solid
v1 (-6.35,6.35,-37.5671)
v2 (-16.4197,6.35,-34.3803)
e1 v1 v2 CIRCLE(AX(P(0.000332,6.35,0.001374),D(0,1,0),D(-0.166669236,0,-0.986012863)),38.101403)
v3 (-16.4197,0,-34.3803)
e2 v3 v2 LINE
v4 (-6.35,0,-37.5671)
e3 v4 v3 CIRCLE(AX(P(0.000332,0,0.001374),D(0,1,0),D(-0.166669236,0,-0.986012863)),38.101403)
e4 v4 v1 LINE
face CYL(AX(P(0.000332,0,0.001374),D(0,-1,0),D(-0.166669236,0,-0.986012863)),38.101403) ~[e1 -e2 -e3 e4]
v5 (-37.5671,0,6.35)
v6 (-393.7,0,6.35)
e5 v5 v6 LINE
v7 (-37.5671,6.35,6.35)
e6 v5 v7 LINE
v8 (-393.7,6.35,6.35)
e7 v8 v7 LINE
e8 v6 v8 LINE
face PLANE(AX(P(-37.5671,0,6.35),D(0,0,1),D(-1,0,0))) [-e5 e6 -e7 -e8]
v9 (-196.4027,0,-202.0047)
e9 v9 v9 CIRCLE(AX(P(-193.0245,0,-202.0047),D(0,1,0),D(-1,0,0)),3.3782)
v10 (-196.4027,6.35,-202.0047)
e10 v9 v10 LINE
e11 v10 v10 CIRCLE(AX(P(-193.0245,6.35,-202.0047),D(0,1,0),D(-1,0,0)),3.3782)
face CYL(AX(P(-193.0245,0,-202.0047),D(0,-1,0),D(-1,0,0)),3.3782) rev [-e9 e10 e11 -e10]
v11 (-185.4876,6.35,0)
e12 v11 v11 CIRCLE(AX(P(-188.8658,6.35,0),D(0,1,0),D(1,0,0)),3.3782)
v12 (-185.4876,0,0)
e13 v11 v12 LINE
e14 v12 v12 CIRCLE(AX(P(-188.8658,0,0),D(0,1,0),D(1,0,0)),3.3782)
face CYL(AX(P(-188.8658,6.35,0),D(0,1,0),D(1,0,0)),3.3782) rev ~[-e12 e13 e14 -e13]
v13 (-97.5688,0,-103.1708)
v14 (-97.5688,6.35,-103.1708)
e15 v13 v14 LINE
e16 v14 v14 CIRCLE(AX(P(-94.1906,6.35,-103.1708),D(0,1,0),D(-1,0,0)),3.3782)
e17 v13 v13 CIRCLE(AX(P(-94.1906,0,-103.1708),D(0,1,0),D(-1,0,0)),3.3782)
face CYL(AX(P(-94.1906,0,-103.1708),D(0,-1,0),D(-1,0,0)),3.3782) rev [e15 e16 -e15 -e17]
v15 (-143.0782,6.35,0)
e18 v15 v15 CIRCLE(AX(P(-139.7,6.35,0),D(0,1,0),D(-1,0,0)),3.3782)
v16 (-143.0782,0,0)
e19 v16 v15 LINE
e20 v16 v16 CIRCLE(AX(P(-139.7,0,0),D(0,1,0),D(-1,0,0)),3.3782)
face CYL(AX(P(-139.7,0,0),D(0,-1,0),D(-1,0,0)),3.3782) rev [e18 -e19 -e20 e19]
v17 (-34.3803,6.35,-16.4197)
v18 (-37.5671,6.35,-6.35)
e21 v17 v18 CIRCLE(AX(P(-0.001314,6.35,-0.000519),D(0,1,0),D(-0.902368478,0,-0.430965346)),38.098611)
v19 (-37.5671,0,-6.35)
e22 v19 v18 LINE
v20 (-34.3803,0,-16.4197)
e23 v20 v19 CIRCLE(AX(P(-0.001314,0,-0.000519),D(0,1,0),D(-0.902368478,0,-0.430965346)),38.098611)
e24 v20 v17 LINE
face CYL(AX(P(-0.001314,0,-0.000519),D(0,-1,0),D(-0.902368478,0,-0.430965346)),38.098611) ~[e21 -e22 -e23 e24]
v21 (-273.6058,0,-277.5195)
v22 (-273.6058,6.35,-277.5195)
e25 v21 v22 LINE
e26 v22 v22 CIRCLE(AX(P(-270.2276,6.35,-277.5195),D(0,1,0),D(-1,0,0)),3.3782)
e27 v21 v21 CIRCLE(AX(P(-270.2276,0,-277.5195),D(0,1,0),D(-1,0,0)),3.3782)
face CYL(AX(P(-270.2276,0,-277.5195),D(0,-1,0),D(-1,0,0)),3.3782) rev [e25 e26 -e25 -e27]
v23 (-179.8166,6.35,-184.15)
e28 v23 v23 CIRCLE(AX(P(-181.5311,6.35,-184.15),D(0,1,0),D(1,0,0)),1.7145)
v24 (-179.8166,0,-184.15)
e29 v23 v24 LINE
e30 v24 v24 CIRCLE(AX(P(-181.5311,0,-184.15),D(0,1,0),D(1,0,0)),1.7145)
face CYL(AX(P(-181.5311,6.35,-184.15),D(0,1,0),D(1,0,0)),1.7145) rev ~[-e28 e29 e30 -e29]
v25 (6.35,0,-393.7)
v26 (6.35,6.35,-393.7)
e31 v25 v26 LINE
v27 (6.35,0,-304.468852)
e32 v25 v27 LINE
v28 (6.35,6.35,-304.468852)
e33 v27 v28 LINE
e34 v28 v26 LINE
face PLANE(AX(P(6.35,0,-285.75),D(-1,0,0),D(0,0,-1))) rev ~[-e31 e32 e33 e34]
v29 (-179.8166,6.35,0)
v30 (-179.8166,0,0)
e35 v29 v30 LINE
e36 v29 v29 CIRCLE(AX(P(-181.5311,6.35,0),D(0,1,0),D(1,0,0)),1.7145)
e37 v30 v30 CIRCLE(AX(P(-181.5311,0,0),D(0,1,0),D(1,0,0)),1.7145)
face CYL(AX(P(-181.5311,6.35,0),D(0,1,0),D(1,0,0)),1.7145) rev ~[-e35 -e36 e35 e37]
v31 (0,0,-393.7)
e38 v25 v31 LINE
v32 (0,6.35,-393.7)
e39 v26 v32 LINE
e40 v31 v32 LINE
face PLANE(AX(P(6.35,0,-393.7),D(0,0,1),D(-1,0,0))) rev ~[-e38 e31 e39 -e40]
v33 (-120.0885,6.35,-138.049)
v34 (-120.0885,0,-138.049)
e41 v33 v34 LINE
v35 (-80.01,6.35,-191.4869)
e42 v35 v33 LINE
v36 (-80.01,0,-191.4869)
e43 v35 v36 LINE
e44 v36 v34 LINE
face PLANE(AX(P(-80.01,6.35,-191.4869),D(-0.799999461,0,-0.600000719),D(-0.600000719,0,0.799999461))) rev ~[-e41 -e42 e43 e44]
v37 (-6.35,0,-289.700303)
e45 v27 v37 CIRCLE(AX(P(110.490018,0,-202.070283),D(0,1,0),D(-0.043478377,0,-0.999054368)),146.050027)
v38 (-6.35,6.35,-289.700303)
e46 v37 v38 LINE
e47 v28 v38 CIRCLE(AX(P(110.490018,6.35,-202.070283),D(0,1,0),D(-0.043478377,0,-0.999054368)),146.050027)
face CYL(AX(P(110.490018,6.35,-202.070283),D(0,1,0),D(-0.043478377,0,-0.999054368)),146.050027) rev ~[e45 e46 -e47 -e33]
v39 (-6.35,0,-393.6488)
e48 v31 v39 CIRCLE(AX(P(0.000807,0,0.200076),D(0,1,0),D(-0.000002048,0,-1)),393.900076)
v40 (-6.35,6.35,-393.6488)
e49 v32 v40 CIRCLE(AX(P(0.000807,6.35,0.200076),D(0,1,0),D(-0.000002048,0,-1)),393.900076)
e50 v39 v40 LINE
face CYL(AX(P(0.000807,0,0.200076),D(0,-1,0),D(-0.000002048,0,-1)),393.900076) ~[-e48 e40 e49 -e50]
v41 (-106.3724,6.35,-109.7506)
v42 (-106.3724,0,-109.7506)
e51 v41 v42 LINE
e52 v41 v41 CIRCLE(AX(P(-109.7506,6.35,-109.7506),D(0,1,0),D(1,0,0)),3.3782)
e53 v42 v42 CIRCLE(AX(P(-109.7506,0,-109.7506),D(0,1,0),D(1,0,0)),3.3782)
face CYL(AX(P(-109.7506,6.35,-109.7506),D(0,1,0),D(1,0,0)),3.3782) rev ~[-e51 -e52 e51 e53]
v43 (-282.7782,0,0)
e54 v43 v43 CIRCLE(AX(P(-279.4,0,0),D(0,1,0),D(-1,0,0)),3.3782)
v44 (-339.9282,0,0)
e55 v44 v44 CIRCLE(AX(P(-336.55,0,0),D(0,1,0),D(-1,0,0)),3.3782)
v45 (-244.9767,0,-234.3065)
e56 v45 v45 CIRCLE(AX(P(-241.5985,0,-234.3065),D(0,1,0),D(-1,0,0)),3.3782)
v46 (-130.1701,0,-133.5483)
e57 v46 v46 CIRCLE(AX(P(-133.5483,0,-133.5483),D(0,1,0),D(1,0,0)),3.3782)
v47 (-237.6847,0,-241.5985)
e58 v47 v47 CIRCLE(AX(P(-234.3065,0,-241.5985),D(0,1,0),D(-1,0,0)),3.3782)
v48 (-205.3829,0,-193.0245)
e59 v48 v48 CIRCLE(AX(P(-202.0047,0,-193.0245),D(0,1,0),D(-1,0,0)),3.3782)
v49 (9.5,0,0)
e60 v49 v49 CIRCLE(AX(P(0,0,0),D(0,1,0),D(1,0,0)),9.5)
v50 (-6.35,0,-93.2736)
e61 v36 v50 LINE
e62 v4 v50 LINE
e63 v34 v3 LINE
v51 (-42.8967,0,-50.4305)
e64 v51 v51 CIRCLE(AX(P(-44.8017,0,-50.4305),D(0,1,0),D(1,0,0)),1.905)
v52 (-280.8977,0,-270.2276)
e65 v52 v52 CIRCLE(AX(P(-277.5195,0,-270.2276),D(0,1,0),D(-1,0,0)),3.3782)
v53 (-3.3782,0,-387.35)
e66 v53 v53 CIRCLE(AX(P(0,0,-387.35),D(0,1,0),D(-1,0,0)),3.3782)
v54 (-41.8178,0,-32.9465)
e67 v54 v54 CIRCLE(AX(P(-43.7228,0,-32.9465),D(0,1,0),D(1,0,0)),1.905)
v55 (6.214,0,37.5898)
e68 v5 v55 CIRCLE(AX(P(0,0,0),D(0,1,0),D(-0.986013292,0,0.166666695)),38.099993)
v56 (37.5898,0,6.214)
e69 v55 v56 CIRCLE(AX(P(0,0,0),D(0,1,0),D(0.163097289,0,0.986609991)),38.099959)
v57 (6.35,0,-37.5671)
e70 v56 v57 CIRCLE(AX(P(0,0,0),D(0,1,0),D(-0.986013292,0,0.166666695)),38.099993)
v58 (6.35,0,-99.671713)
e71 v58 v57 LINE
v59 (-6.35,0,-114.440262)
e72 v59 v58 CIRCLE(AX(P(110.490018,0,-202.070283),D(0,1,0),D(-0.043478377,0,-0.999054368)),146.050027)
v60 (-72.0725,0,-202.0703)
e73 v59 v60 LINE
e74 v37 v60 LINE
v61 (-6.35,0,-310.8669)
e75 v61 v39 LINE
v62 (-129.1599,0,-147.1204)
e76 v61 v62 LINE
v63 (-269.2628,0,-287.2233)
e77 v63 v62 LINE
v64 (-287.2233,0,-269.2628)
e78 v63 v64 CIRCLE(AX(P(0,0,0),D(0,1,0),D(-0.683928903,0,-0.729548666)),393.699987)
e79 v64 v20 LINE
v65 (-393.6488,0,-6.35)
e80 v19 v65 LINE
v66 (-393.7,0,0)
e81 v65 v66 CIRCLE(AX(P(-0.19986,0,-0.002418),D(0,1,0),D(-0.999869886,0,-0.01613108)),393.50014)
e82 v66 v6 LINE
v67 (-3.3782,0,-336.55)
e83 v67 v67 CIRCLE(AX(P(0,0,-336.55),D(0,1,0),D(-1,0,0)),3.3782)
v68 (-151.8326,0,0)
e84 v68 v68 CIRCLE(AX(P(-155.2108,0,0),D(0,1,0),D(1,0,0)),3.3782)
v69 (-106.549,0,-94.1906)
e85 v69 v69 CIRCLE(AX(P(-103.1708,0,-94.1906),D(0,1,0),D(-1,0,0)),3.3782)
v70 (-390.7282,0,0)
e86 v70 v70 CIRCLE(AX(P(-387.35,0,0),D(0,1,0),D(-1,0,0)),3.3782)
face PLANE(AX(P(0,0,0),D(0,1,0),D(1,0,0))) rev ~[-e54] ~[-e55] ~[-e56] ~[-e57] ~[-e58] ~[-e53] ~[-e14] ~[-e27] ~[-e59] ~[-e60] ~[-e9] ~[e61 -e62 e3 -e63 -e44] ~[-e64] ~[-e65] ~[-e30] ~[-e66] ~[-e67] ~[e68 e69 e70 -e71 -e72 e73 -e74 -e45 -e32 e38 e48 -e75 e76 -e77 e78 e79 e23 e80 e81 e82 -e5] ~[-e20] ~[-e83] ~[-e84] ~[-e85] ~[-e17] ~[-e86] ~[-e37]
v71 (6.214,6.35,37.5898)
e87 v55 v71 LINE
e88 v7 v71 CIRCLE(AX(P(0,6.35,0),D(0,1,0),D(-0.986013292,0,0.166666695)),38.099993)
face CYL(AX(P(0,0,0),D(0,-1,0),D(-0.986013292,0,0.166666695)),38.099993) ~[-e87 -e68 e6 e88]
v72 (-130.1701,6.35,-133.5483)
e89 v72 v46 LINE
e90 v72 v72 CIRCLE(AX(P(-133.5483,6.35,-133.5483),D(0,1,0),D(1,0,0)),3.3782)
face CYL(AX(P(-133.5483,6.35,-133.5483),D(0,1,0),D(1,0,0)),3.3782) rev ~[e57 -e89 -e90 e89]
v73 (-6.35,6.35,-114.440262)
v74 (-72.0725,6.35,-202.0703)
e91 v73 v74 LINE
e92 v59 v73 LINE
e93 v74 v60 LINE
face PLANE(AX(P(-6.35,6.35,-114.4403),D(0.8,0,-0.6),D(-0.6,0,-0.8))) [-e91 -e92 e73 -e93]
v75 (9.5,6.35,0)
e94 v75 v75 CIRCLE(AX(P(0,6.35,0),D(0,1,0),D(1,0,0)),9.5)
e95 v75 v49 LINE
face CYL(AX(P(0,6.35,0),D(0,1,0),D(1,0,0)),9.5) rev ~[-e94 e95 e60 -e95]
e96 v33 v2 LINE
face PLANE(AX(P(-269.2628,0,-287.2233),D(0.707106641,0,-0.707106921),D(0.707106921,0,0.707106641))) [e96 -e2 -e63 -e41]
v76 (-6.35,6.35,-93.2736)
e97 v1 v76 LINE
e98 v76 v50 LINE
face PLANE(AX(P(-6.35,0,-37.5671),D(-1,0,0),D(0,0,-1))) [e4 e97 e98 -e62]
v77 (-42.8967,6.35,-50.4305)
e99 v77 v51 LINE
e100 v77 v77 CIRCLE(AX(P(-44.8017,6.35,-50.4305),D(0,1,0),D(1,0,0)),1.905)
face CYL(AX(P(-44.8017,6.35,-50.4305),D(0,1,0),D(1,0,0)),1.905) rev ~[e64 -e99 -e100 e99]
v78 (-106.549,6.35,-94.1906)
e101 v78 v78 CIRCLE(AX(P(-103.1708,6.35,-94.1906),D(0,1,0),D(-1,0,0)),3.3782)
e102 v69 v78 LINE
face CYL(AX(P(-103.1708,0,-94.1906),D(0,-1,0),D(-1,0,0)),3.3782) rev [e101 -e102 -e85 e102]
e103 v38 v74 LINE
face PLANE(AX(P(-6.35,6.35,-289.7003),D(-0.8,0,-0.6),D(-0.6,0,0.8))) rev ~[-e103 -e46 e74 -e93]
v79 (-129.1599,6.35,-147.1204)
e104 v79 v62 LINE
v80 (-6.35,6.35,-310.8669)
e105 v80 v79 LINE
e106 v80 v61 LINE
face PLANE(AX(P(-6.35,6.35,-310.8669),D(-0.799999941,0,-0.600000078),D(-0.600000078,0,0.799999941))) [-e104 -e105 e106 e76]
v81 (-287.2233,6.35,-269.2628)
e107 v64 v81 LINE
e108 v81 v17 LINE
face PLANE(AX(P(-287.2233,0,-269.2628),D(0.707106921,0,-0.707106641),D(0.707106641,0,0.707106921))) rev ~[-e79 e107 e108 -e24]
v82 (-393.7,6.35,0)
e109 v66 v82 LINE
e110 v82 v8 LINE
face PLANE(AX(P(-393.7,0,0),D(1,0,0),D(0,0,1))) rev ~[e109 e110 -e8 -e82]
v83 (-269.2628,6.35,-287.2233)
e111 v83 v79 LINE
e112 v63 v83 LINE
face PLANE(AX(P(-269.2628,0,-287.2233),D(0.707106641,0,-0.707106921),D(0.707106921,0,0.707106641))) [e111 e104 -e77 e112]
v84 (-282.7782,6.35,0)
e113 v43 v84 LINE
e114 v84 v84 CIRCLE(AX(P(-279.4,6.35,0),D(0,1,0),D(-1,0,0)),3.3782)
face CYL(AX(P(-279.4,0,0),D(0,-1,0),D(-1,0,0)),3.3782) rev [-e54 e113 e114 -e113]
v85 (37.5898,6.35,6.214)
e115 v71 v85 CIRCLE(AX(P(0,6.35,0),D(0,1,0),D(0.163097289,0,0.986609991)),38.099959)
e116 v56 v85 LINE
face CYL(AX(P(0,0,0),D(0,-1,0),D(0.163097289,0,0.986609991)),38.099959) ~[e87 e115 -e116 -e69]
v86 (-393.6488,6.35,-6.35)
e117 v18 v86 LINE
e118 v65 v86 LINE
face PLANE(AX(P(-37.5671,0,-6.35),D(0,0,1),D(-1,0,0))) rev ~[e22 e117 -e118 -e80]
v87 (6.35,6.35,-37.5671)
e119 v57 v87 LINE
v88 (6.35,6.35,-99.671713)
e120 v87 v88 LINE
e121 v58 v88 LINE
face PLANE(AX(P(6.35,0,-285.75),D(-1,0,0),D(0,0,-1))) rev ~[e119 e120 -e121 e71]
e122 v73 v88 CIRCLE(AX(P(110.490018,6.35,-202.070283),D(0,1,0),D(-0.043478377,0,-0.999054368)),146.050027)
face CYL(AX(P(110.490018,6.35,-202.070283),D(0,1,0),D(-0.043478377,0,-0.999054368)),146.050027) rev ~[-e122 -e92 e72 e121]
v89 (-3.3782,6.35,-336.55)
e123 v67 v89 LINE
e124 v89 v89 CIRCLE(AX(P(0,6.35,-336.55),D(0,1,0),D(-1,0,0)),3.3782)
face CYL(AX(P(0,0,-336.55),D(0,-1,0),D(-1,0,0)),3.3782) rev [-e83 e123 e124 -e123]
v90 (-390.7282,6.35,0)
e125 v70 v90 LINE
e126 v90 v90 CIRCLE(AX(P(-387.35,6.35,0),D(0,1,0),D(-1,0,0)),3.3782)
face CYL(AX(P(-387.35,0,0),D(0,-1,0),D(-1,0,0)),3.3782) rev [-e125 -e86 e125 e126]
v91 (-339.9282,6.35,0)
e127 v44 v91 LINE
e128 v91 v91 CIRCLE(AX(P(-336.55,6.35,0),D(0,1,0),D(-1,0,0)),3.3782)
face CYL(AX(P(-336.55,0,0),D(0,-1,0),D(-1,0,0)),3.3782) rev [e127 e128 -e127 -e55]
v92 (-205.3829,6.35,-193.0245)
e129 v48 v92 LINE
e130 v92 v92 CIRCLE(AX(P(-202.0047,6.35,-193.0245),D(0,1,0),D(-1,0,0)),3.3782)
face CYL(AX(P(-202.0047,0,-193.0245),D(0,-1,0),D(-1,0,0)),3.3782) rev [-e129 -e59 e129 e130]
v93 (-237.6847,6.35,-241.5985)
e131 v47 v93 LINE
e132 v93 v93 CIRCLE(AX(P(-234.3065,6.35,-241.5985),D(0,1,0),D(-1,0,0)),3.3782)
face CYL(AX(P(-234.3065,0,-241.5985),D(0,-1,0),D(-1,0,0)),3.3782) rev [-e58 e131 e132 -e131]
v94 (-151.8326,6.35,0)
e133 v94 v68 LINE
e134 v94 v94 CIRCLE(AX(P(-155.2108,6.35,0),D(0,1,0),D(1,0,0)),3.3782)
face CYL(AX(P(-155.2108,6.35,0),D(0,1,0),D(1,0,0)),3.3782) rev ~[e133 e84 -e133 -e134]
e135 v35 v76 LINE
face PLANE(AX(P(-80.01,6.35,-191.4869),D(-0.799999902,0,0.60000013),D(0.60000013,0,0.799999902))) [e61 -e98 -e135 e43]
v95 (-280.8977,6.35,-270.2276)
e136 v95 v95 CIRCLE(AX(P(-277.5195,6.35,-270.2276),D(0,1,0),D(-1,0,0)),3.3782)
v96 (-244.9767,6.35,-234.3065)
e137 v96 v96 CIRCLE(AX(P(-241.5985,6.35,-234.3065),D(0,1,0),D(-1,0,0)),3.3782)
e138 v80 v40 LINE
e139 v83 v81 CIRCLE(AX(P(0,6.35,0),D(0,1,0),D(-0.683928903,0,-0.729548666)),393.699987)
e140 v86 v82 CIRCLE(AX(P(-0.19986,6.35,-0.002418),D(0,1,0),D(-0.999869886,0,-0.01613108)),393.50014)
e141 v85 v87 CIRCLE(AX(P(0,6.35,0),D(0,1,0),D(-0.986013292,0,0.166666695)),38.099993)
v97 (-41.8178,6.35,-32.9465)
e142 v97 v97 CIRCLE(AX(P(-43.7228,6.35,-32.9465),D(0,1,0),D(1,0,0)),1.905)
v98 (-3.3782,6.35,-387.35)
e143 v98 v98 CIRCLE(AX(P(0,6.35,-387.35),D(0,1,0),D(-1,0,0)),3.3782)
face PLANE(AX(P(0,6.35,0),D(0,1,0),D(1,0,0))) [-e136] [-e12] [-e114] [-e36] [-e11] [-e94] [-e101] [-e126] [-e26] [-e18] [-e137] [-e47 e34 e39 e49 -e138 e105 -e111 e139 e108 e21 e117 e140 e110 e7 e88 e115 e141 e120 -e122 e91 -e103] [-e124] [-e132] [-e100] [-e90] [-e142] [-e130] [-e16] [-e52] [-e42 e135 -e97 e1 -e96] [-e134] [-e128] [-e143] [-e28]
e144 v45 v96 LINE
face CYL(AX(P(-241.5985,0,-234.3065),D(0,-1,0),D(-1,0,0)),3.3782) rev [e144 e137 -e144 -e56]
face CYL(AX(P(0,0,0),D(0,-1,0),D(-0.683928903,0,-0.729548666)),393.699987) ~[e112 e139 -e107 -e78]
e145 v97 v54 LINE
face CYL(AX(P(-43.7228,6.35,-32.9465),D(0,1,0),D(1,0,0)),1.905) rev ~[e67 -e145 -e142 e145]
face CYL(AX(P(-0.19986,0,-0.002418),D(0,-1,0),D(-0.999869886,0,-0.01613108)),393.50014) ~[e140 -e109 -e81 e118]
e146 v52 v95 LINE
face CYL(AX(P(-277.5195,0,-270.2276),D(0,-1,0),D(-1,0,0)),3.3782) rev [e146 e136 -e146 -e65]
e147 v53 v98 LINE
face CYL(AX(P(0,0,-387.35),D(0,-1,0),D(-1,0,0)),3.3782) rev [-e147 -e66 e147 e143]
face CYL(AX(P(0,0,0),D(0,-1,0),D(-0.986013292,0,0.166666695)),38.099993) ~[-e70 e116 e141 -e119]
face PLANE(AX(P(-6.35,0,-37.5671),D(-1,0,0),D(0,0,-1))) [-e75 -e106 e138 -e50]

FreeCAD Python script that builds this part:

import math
import FreeCAD as App
import Part
import Sketcher

V = App.Vector
Q = App.Units.Quantity


def add_polygon(sketch, points):
    """Adds a closed chain of lines whose ends are joined by coincident constraints."""
    first, n = sketch.GeometryCount, len(points)
    for a, b in zip(points, points[1:] + points[:1]):
        sketch.addGeometry(Part.LineSegment(App.Vector(*a, 0), App.Vector(*b, 0)), False)
    for i in range(n):
        sketch.addConstraint(Sketcher.Constraint("Coincident", first + i, 2, first + (i + 1) % n, 1))

doc = App.newDocument("Part")
params = doc.addObject("Spreadsheet::Sheet", "Params")
for row, (alias, value) in enumerate([
    ("sketch1_radius", "15.5 in"),
    ("sketch1_radius2", "1.5 in"),
    ("sketch1_diameter", "0.266 in"),
    ("sketch1_diameter2", "0.266 in"),
    ("sketch1_diameter3", "0.266 in"),
    ("pad1_length", "0.25 in"),
    ("sketch2_diameter", "1.125 in"),
    ("pad2_length", "0.25 in"),
    ("sketch3_radius", "5.75 in"),
    ("sketch3_diameter", "0.266 in"),
    ("pocket1_length", "1 in"),
    ("pad3_length", "0.25 in"),
    ("sketch5_diameter", "0.15 in"),
    ("sketch5_diameter2", "0.266 in"),
    ("sketch5_diameter3", "0.135 in"),
], start=1):
    params.set(f"A{row}", alias)
    params.set(f"B{row}", "=" + value)
    params.setAlias(f"B{row}", alias)

body = doc.addObject("PartDesign::Body", "Body")
body.AllowCompound = True

# Sketch on XZ plane
sketch1 = body.newObject("Sketcher::SketchObject", "Sketch")
sketch1.AttachmentSupport = (doc.getObject("XZ_Plane"), [""])
sketch1.MapMode = "FlatFace"
sketch1.addGeometry(Part.LineSegment(V(-6.35, -393.6488, 0), V(-6.35, -37.5671, 0)), False)
sketch1.addGeometry(Part.ArcOfCircle(Part.Circle(V(0.000332, 0.001374, 0), V(0, 0, 1), 38.101403), math.radians(-115.528251), math.radians(-99.594218)), False)
sketch1.addGeometry(Part.LineSegment(V(-16.4197, -34.3803, 0), V(-269.2628, -287.2233, 0)), False)
sketch1.addGeometry(Part.ArcOfCircle(Part.Circle(V(0, 0, 0), V(0, 0, 1), 393.699987), math.radians(-136.84857), math.radians(-133.15143)), False)
sketch1.addGeometry(Part.LineSegment(V(-287.2233, -269.2628, 0), V(-34.3803, -16.4197, 0)), False)
sketch1.addGeometry(Part.ArcOfCircle(Part.Circle(V(-0.001314, -0.000519, 0), V(0, 0, 1), 38.098611), math.radians(-170.40637), math.radians(-154.471161)), False)
sketch1.addGeometry(Part.LineSegment(V(-37.5671, -6.35, 0), V(-393.6488, -6.35, 0)), False)
sketch1.addGeometry(Part.ArcOfCircle(Part.Circle(V(-0.19986, -0.002418, 0), V(0, 0, 1), 393.50014), math.radians(179.999648), math.radians(180.924283)), False)
sketch1.addGeometry(Part.LineSegment(V(-393.7, 0, 0), V(-393.7, 6.35, 0)), False)
sketch1.addGeometry(Part.LineSegment(V(-393.7, 6.35, 0), V(-37.5671, 6.35, 0)), False)
sketch1.addGeometry(Part.ArcOfCircle(Part.Circle(V(0, 0, 0), V(0, 0, 1), 38.099993), math.radians(-80.40593), math.radians(170.40593)), False)
sketch1.addGeometry(Part.LineSegment(V(6.35, -37.5671, 0), V(6.35, -393.7, 0)), False)
sketch1.addGeometry(Part.LineSegment(V(6.35, -393.7, 0), V(0, -393.7, 0)), False)
sketch1.addGeometry(Part.ArcOfCircle(Part.Circle(V(0.000807, 0.200076, 0), V(0, 0, 1), 393.900076), math.radians(-90.923813), math.radians(-90.000117)), False)
sketch1.addGeometry(Part.Circle(V(0, -387.35, 0), V(0, 0, 1), 3.3782), False)
sketch1.addGeometry(Part.Circle(V(0, -336.55, 0), V(0, 0, 1), 3.3782), False)
sketch1.addGeometry(Part.Circle(V(0, -279.4, 0), V(0, 0, 1), 3.3782), False)
sketch1.addGeometry(Part.Circle(V(-270.2276, -277.5195, 0), V(0, 0, 1), 3.3782), False)
sketch1.addGeometry(Part.Circle(V(-277.5195, -270.2276, 0), V(0, 0, 1), 3.3782), False)
sketch1.addGeometry(Part.Circle(V(-234.3065, -241.5985, 0), V(0, 0, 1), 3.3782), False)
sketch1.addGeometry(Part.Circle(V(-241.5985, -234.3065, 0), V(0, 0, 1), 3.3782), False)
sketch1.addGeometry(Part.Circle(V(-193.0245, -202.0047, 0), V(0, 0, 1), 3.3782), False)
sketch1.addGeometry(Part.Circle(V(-202.0047, -193.0245, 0), V(0, 0, 1), 3.3782), False)
sketch1.addGeometry(Part.Circle(V(0, -139.7, 0), V(0, 0, 1), 3.3782), False)
sketch1.addGeometry(Part.Circle(V(-94.1906, -103.1708, 0), V(0, 0, 1), 3.3782), False)
sketch1.addGeometry(Part.Circle(V(-103.1708, -94.1906, 0), V(0, 0, 1), 3.3782), False)
sketch1.addGeometry(Part.Circle(V(0, 0, 0), V(0, 0, 1), 14.2875), False)
sketch1.addGeometry(Part.Circle(V(-139.7, 0, 0), V(0, 0, 1), 3.3782), False)
sketch1.addGeometry(Part.Circle(V(-279.4, 0, 0), V(0, 0, 1), 3.3782), False)
sketch1.addGeometry(Part.Circle(V(-336.55, 0, 0), V(0, 0, 1), 3.3782), False)
sketch1.addGeometry(Part.Circle(V(-387.35, 0, 0), V(0, 0, 1), 3.3782), False)
sketch1.addConstraint(Sketcher.Constraint("Coincident", 0, 2, 1, 2))
sketch1.addConstraint(Sketcher.Constraint("Coincident", 1, 1, 2, 1))
sketch1.addConstraint(Sketcher.Constraint("Coincident", 2, 2, 3, 2))
sketch1.addConstraint(Sketcher.Constraint("Coincident", 3, 1, 4, 1))
sketch1.addConstraint(Sketcher.Constraint("Coincident", 4, 2, 5, 2))
sketch1.addConstraint(Sketcher.Constraint("Coincident", 5, 1, 6, 1))
sketch1.addConstraint(Sketcher.Constraint("Coincident", 6, 2, 7, 2))
sketch1.addConstraint(Sketcher.Constraint("Coincident", 7, 1, 8, 1))
sketch1.addConstraint(Sketcher.Constraint("Coincident", 8, 2, 9, 1))
sketch1.addConstraint(Sketcher.Constraint("Coincident", 9, 2, 10, 2))
sketch1.addConstraint(Sketcher.Constraint("Coincident", 10, 1, 11, 1))
sketch1.addConstraint(Sketcher.Constraint("Coincident", 11, 2, 12, 1))
sketch1.addConstraint(Sketcher.Constraint("Coincident", 12, 2, 13, 2))
sketch1.addConstraint(Sketcher.Constraint("Coincident", 13, 1, 0, 1))
sketch1.addConstraint(Sketcher.Constraint("Vertical", 0))
sketch1.addConstraint(Sketcher.Constraint("Horizontal", 6))
sketch1.addConstraint(Sketcher.Constraint("Vertical", 8))
sketch1.addConstraint(Sketcher.Constraint("Horizontal", 9))
sketch1.addConstraint(Sketcher.Constraint("Vertical", 11))
sketch1.addConstraint(Sketcher.Constraint("Horizontal", 12))
sketch1.addConstraint(Sketcher.Constraint("Coincident", 3, 3, -1, 1))
sketch1.addConstraint(Sketcher.Constraint("Coincident", 10, 3, -1, 1))
sketch1.addConstraint(Sketcher.Constraint("Coincident", 26, 3, -1, 1))
sketch1.addConstraint(Sketcher.Constraint("PointOnObject", 14, 3, -2))
sketch1.addConstraint(Sketcher.Constraint("PointOnObject", 15, 3, -2))
sketch1.addConstraint(Sketcher.Constraint("PointOnObject", 16, 3, -2))
sketch1.addConstraint(Sketcher.Constraint("PointOnObject", 23, 3, -2))
sketch1.addConstraint(Sketcher.Constraint("PointOnObject", 27, 3, -1))
sketch1.addConstraint(Sketcher.Constraint("PointOnObject", 28, 3, -1))
sketch1.addConstraint(Sketcher.Constraint("PointOnObject", 29, 3, -1))
sketch1.addConstraint(Sketcher.Constraint("PointOnObject", 30, 3, -1))
sketch1.addConstraint(Sketcher.Constraint("PointOnObject", 7, 1, -1))
sketch1.addConstraint(Sketcher.Constraint("PointOnObject", 12, 2, -2))
sketch1.addConstraint(Sketcher.Constraint("Radius", 3, Q("15.5 in")))
sketch1.addConstraint(Sketcher.Constraint("Radius", 10, Q("1.5 in")))
sketch1.addConstraint(Sketcher.Constraint("Diameter", 14, Q("0.266 in")))
sketch1.addConstraint(Sketcher.Constraint("Diameter", 15, Q("0.266 in")))
sketch1.addConstraint(Sketcher.Constraint("Diameter", 16, Q("0.266 in")))
sketch1.addConstraint(Sketcher.Constraint("Diameter", 17, Q("0.266 in")))
sketch1.addConstraint(Sketcher.Constraint("Diameter", 18, Q("0.266 in")))
sketch1.addConstraint(Sketcher.Constraint("Diameter", 19, Q("0.266 in")))
sketch1.addConstraint(Sketcher.Constraint("Diameter", 20, Q("0.266 in")))
sketch1.addConstraint(Sketcher.Constraint("Diameter", 21, Q("0.266 in")))
sketch1.addConstraint(Sketcher.Constraint("Diameter", 22, Q("0.266 in")))
sketch1.addConstraint(Sketcher.Constraint("Diameter", 23, Q("0.266 in")))
sketch1.addConstraint(Sketcher.Constraint("Diameter", 24, Q("0.266 in")))
sketch1.addConstraint(Sketcher.Constraint("Diameter", 25, Q("0.266 in")))
sketch1.addConstraint(Sketcher.Constraint("Diameter", 26, Q("1.125 in")))
sketch1.addConstraint(Sketcher.Constraint("Diameter", 27, Q("0.266 in")))
sketch1.addConstraint(Sketcher.Constraint("Diameter", 28, Q("0.266 in")))
sketch1.addConstraint(Sketcher.Constraint("Diameter", 29, Q("0.266 in")))
sketch1.addConstraint(Sketcher.Constraint("Diameter", 30, Q("0.266 in")))
sketch1.addConstraint(Sketcher.Constraint("DistanceY", 14, 3, 15, 3, Q("2 in")))
sketch1.addConstraint(Sketcher.Constraint("DistanceX", 30, 3, 29, 3, Q("2 in")))
sketch1.addConstraint(Sketcher.Constraint("DistanceX", 12, 2, 12, 1, Q("0.25 in")))
sketch1.addConstraint(Sketcher.Constraint("DistanceY", 8, 1, 8, 2, Q("0.25 in")))
sketch1.addConstraint(Sketcher.Constraint("DistanceY", 23, 3, -1, 1, Q("5.5 in")))
sketch1.addConstraint(Sketcher.Constraint("DistanceX", 27, 3, -1, 1, Q("5.5 in")))
sketch1.addConstraint(Sketcher.Constraint("DistanceX", 7, 1, -1, 1, Q("15.5 in")))
sketch1.addConstraint(Sketcher.Constraint("DistanceY", 11, 2, -1, 1, Q("15.5 in")))
sketch1.addConstraint(Sketcher.Constraint("DistanceY", 16, 3, 23, 3, Q("5.5 in")))
sketch1.addConstraint(Sketcher.Constraint("DistanceX", 28, 3, 27, 3, Q("5.5 in")))
sketch1.addConstraint(Sketcher.Constraint("DistanceY", 6, 2, 8, 2, Q("0.5 in")))
sketch1.addConstraint(Sketcher.Constraint("DistanceX", 0, 2, 10, 1, Q("0.5 in")))
sketch1.addConstraint(Sketcher.Constraint("DistanceX", 7, 1, 30, 3, Q("0.25 in")))
sketch1.addConstraint(Sketcher.Constraint("DistanceY", 11, 2, 14, 3, Q("0.25 in")))
sketch1.addConstraint(Sketcher.Constraint("DistanceX", 17, 3, -1, 1, 270.2276))
sketch1.addConstraint(Sketcher.Constraint("DistanceY", 17, 3, -1, 1, 277.5195))
sketch1.addConstraint(Sketcher.Constraint("DistanceX", 18, 3, -1, 1, 277.5195))
sketch1.addConstraint(Sketcher.Constraint("DistanceY", 18, 3, -1, 1, 270.2276))
sketch1.addConstraint(Sketcher.Constraint("Radius", 1, 38.1014))
sketch1.addConstraint(Sketcher.Constraint("Radius", 5, 38.0986))
sketch1.addConstraint(Sketcher.Constraint("Radius", 7, 393.5001))
sketch1.addConstraint(Sketcher.Constraint("Radius", 13, 393.9))
sketch1.addConstraint(Sketcher.Constraint("DistanceY", 17, 3, 5, 3, 277.519))
sketch1.addConstraint(Sketcher.Constraint("DistanceX", 20, 3, 19, 3, 7.292))
sketch1.addConstraint(Sketcher.Constraint("DistanceY", 19, 3, 20, 3, 7.292))
sketch1.addConstraint(Sketcher.Constraint("DistanceY", 2, 2, -1, 1, Q("11.308 in")))
sketch1.addConstraint(Sketcher.Constraint("DistanceX", 3, 1, -1, 1, Q("11.308 in")))
sketch1.addConstraint(Sketcher.Constraint("DistanceY", 0, 2, 5, 3, Q("1.479 in")))
sketch1.addConstraint(Sketcher.Constraint("DistanceX", 6, 2, 6, 1, 356.0817))
sketch1.addConstraint(Sketcher.Constraint("DistanceY", 0, 1, 0, 2, 356.0817))
sketch1.addConstraint(Sketcher.Constraint("DistanceY", 7, 3, -1, 1, Q("0.0001 in")))
sketch1.addConstraint(Sketcher.Constraint("DistanceX", 21, 3, -1, 1, Q("7.5994 in")))
sketch1.addConstraint(Sketcher.Constraint("DistanceY", 22, 3, -1, 1, Q("7.5994 in")))
sketch1.addConstraint(Sketcher.Constraint("DistanceX", 24, 3, -1, 1, Q("3.7083 in")))
sketch1.addConstraint(Sketcher.Constraint("DistanceY", 25, 3, -1, 1, Q("3.7083 in")))
sketch1.addConstraint(Sketcher.Constraint("DistanceX", 18, 3, 19, 3, Q("1.7013 in")))
sketch1.addConstraint(Sketcher.Constraint("DistanceY", 17, 3, 20, 3, Q("1.7013 in")))
sketch1.addConstraint(Sketcher.Constraint("DistanceY", 19, 3, 21, 3, Q("1.5588 in")))
sketch1.addConstraint(Sketcher.Constraint("DistanceX", 20, 3, 22, 3, Q("1.5588 in")))
sketch1.addConstraint(Sketcher.Constraint("DistanceX", 25, 3, 5, 3, Q("4.0618 in")))
sketch1.addConstraint(Sketcher.Constraint("DistanceX", 1, 1, 5, 3, Q("0.6464 in")))
sketch1.addConstraint(Sketcher.Constraint("DistanceX", 4, 2, 1, 1, Q("0.7071 in")))
sketch1.addConstraint(Sketcher.Constraint("DistanceY", 1, 1, 4, 2, Q("0.7071 in")))
sketch1.addConstraint(Sketcher.Constraint("DistanceY", 24, 3, -1, 1, 103.1708))
sketch1.setExpression("Constraints[33]", "Params.sketch1_radius")
sketch1.setExpression("Constraints[34]", "Params.sketch1_radius2")
sketch1.setExpression("Constraints[35]", "Params.sketch1_diameter")
sketch1.setExpression("Constraints[36]", "Params.sketch1_diameter2")
sketch1.setExpression("Constraints[37]", "Params.sketch1_diameter3")
pad1 = body.newObject("PartDesign::Pad", "Pad")
pad1.Profile = sketch1
pad1.setExpression("Length", "Params.pad1_length")
pad1.Reversed = True

# Sketch on XZ plane
sketch2 = body.newObject("Sketcher::SketchObject", "Sketch001")
sketch2.AttachmentSupport = (doc.getObject("XZ_Plane"), [""])
sketch2.MapMode = "FlatFace"
sketch2.AttachmentOffset = App.Placement(V(0, 0, -0.25 * 25.4), App.Rotation())
sketch2.addGeometry(Part.Circle(V(0, 0, 0), V(0, 0, 1), 14), False)
sketch2.addGeometry(Part.Circle(V(0, 0, 0), V(0, 0, 1), 10), False)
sketch2.addConstraint(Sketcher.Constraint("Coincident", 0, 3, -1, 1))
sketch2.addConstraint(Sketcher.Constraint("Coincident", 1, 3, -1, 1))
sketch2.addConstraint(Sketcher.Constraint("Diameter", 1, 19.0))
sketch2.addConstraint(Sketcher.Constraint("Diameter", 0, Q("1.125 in")))
sketch2.setExpression("Constraints[3]", "Params.sketch2_diameter")
pad2 = body.newObject("PartDesign::Pad", "Pad001")
pad2.Profile = sketch2
pad2.setExpression("Length", "Params.pad2_length")

# Sketch on XZ plane
sketch3 = body.newObject("Sketcher::SketchObject", "Sketch002")
sketch3.AttachmentSupport = (doc.getObject("XZ_Plane"), [""])
sketch3.MapMode = "FlatFace"
sketch3.AttachmentOffset = App.Placement(V(0, 0, -0.25 * 25.4), App.Rotation())
sketch3.addGeometry(Part.ArcOfCircle(Part.Circle(V(110.5, -202.1, 0), V(0, 0, 1), 146.1), math.radians(-92), math.radians(92)), False)
sketch3.addGeometry(Part.ArcOfCircle(Part.Circle(V(110.5, -202.1, 0), V(0, 0, 1), 146.1), math.radians(92), math.radians(268)), False)
sketch3.addGeometry(Part.Circle(V(0, -139.7, 0), V(0, 0, 1), 3.4), False)
sketch3.addGeometry(Part.Circle(V(0, -279.4, 0), V(0, 0, 1), 3.4), False)
sketch3.addConstraint(Sketcher.Constraint("Tangent", 0, 1, 1, 2))
sketch3.addConstraint(Sketcher.Constraint("Coincident", 1, 1, 0, 2))
sketch3.addConstraint(Sketcher.Constraint("Equal", 2, 3))
sketch3.addConstraint(Sketcher.Constraint("PointOnObject", 2, 3, -2))
sketch3.addConstraint(Sketcher.Constraint("PointOnObject", 3, 3, -2))
sketch3.addConstraint(Sketcher.Constraint("Radius", 0, Q("5.75 in")))
sketch3.addConstraint(Sketcher.Constraint("Diameter", 2, Q("0.266 in")))
sketch3.addConstraint(Sketcher.Constraint("DistanceY", 3, 3, -1, 1, Q("11 in")))
sketch3.addConstraint(Sketcher.Constraint("DistanceY", 2, 3, -1, 1, Q("5.5 in")))
sketch3.addConstraint(Sketcher.Constraint("DistanceX", -1, 1, 0, 1, Q("4.1 in")))
sketch3.addConstraint(Sketcher.Constraint("DistanceX", -1, 1, 0, 3, Q("4.35 in")))
sketch3.addConstraint(Sketcher.Constraint("DistanceY", 0, 3, -1, 1, 202.0703))
sketch3.addConstraint(Sketcher.Constraint("DistanceX", -1, 1, 1, 1, 104.1415))
sketch3.setExpression("Constraints[5]", "Params.sketch3_radius")
sketch3.setExpression("Constraints[6]", "Params.sketch3_diameter")
pocket1 = body.newObject("PartDesign::Pocket", "Pocket")
pocket1.Profile = sketch3
pocket1.setExpression("Length", "Params.pocket1_length")
pocket1.Reversed = True

# Sketch on XZ plane
sketch4 = body.newObject("Sketcher::SketchObject", "Sketch003")
sketch4.AttachmentSupport = (doc.getObject("XZ_Plane"), [""])
sketch4.MapMode = "FlatFace"
sketch4.AttachmentOffset = App.Placement(V(0, 0, -0.25 * 25.4), App.Rotation())
add_polygon(sketch4, [(-6, -290), (-6, -311), (-129, -147), (-120, -138), (-80, -191), (-6, -93), (-6, -114), (-72, -202)])  # lines 0-7
sketch4.addConstraint(Sketcher.Constraint("Vertical", 0))
sketch4.addConstraint(Sketcher.Constraint("Vertical", 5))
sketch4.addConstraint(Sketcher.Constraint("Parallel", 1, 3))
sketch4.addConstraint(Sketcher.Constraint("Parallel", 4, 6))
sketch4.addConstraint(Sketcher.Constraint("Parallel", 3, 7))
sketch4.addConstraint(Sketcher.Constraint("Vertical", 0, 2, 4, 2))
sketch4.addConstraint(Sketcher.Constraint("Equal", 0, 5))
sketch4.addConstraint(Sketcher.Constraint("Equal", 6, 7))
sketch4.addConstraint(Sketcher.Constraint("Angle", 2, Q("45 deg")))
sketch4.addConstraint(Sketcher.Constraint("DistanceX", 3, 2, 0, 2, Q("2.9 in")))
sketch4.addConstraint(Sketcher.Constraint("DistanceY", 0, 2, 3, 2, Q("4.7 in")))
sketch4.addConstraint(Sketcher.Constraint("DistanceY", 7, 2, 5, 2, Q("6.9 in")))
sketch4.addConstraint(Sketcher.Constraint("DistanceX", 0, 2, -1, 1, Q("0.25 in")))
sketch4.addConstraint(Sketcher.Constraint("Angle", 1, Q("126.87 deg")))
sketch4.addConstraint(Sketcher.Constraint("DistanceY", 2, 2, -1, 1, Q("5.435 in")))
sketch4.addConstraint(Sketcher.Constraint("Distance", 1, Q("8.0584 in")))
pad3 = body.newObject("PartDesign::Pad", "Pad002")
pad3.Profile = sketch4
pad3.setExpression("Length", "Params.pad3_length")

# Sketch on XZ plane
sketch5 = body.newObject("Sketcher::SketchObject", "Sketch004")
sketch5.AttachmentSupport = (doc.getObject("XZ_Plane"), [""])
sketch5.MapMode = "FlatFace"
sketch5.AttachmentOffset = App.Placement(V(0, 0, -0.25 * 25.4), App.Rotation())
sketch5.addGeometry(Part.Circle(V(-109.8, -109.8, 0), V(0, 0, 1), 3.4), False)
sketch5.addGeometry(Part.Circle(V(-133.5, -133.5, 0), V(0, 0, 1), 3.4), False)
sketch5.addGeometry(Part.Circle(V(-188.9, 0, 0), V(0, 0, 1), 3.4), False)
sketch5.addGeometry(Part.Circle(V(-155.2, 0, 0), V(0, 0, 1), 3.4), False)
sketch5.addGeometry(Part.Circle(V(-43.7, -32.9, 0), V(0, 0, 1), 1.9), False)
sketch5.addGeometry(Part.Circle(V(-44.8, -50.4, 0), V(0, 0, 1), 1.9), False)
sketch5.addGeometry(Part.Circle(V(-181.5, -184.2, 0), V(0, 0, 1), 1.7), False)
sketch5.addGeometry(Part.Circle(V(-181.5, 0, 0), V(0, 0, 1), 1.7), False)
sketch5.addConstraint(Sketcher.Constraint("Equal", 0, 1))
sketch5.addConstraint(Sketcher.Constraint("Equal", 1, 2))
sketch5.addConstraint(Sketcher.Constraint("Equal", 2, 3))
sketch5.addConstraint(Sketcher.Constraint("Equal", 4, 5))
sketch5.addConstraint(Sketcher.Constraint("Equal", 6, 7))
sketch5.addConstraint(Sketcher.Constraint("PointOnObject", 2, 3, -1))
sketch5.addConstraint(Sketcher.Constraint("PointOnObject", 3, 3, -1))
sketch5.addConstraint(Sketcher.Constraint("PointOnObject", 7, 3, -1))
sketch5.addConstraint(Sketcher.Constraint("Vertical", 6, 3, 7, 3))
sketch5.addConstraint(Sketcher.Constraint("Diameter", 4, Q("0.15 in")))
sketch5.addConstraint(Sketcher.Constraint("Diameter", 0, Q("0.266 in")))
sketch5.addConstraint(Sketcher.Constraint("Diameter", 6, Q("0.135 in")))
sketch5.addConstraint(Sketcher.Constraint("DistanceY", 6, 3, -1, 1, Q("7.25 in")))
sketch5.addConstraint(Sketcher.Constraint("DistanceX", 2, 3, 3, 3, Q("1.325 in")))
sketch5.addConstraint(Sketcher.Constraint("DistanceX", 6, 3, 0, 3, Q("2.826 in")))
sketch5.addConstraint(Sketcher.Constraint("DistanceX", 0, 3, -1, 1, Q("4.3209 in")))
sketch5.addConstraint(Sketcher.Constraint("DistanceY", 0, 3, -1, 1, Q("4.3209 in")))
sketch5.addConstraint(Sketcher.Constraint("DistanceX", 1, 3, -1, 1, Q("5.2578 in")))
sketch5.addConstraint(Sketcher.Constraint("DistanceY", 1, 3, -1, 1, Q("5.2578 in")))
sketch5.addConstraint(Sketcher.Constraint("DistanceY", 4, 3, -1, 1, Q("1.2971 in")))
sketch5.addConstraint(Sketcher.Constraint("DistanceX", 3, 3, 4, 3, Q("4.3893 in")))
sketch5.addConstraint(Sketcher.Constraint("DistanceX", 2, 3, -1, 1, 188.8658))
sketch5.addConstraint(Sketcher.Constraint("DistanceX", 5, 3, -1, 1, 44.8017))
sketch5.addConstraint(Sketcher.Constraint("DistanceY", 5, 3, -1, 1, 50.4305))
sketch5.setExpression("Constraints[9]", "Params.sketch5_diameter")
sketch5.setExpression("Constraints[10]", "Params.sketch5_diameter2")
sketch5.setExpression("Constraints[11]", "Params.sketch5_diameter3")
pocket2 = body.newObject("PartDesign::Pocket", "Pocket001")
pocket2.Profile = sketch5
pocket2.Type = "ThroughAll"
pocket2.Reversed = True

doc.recompute()
